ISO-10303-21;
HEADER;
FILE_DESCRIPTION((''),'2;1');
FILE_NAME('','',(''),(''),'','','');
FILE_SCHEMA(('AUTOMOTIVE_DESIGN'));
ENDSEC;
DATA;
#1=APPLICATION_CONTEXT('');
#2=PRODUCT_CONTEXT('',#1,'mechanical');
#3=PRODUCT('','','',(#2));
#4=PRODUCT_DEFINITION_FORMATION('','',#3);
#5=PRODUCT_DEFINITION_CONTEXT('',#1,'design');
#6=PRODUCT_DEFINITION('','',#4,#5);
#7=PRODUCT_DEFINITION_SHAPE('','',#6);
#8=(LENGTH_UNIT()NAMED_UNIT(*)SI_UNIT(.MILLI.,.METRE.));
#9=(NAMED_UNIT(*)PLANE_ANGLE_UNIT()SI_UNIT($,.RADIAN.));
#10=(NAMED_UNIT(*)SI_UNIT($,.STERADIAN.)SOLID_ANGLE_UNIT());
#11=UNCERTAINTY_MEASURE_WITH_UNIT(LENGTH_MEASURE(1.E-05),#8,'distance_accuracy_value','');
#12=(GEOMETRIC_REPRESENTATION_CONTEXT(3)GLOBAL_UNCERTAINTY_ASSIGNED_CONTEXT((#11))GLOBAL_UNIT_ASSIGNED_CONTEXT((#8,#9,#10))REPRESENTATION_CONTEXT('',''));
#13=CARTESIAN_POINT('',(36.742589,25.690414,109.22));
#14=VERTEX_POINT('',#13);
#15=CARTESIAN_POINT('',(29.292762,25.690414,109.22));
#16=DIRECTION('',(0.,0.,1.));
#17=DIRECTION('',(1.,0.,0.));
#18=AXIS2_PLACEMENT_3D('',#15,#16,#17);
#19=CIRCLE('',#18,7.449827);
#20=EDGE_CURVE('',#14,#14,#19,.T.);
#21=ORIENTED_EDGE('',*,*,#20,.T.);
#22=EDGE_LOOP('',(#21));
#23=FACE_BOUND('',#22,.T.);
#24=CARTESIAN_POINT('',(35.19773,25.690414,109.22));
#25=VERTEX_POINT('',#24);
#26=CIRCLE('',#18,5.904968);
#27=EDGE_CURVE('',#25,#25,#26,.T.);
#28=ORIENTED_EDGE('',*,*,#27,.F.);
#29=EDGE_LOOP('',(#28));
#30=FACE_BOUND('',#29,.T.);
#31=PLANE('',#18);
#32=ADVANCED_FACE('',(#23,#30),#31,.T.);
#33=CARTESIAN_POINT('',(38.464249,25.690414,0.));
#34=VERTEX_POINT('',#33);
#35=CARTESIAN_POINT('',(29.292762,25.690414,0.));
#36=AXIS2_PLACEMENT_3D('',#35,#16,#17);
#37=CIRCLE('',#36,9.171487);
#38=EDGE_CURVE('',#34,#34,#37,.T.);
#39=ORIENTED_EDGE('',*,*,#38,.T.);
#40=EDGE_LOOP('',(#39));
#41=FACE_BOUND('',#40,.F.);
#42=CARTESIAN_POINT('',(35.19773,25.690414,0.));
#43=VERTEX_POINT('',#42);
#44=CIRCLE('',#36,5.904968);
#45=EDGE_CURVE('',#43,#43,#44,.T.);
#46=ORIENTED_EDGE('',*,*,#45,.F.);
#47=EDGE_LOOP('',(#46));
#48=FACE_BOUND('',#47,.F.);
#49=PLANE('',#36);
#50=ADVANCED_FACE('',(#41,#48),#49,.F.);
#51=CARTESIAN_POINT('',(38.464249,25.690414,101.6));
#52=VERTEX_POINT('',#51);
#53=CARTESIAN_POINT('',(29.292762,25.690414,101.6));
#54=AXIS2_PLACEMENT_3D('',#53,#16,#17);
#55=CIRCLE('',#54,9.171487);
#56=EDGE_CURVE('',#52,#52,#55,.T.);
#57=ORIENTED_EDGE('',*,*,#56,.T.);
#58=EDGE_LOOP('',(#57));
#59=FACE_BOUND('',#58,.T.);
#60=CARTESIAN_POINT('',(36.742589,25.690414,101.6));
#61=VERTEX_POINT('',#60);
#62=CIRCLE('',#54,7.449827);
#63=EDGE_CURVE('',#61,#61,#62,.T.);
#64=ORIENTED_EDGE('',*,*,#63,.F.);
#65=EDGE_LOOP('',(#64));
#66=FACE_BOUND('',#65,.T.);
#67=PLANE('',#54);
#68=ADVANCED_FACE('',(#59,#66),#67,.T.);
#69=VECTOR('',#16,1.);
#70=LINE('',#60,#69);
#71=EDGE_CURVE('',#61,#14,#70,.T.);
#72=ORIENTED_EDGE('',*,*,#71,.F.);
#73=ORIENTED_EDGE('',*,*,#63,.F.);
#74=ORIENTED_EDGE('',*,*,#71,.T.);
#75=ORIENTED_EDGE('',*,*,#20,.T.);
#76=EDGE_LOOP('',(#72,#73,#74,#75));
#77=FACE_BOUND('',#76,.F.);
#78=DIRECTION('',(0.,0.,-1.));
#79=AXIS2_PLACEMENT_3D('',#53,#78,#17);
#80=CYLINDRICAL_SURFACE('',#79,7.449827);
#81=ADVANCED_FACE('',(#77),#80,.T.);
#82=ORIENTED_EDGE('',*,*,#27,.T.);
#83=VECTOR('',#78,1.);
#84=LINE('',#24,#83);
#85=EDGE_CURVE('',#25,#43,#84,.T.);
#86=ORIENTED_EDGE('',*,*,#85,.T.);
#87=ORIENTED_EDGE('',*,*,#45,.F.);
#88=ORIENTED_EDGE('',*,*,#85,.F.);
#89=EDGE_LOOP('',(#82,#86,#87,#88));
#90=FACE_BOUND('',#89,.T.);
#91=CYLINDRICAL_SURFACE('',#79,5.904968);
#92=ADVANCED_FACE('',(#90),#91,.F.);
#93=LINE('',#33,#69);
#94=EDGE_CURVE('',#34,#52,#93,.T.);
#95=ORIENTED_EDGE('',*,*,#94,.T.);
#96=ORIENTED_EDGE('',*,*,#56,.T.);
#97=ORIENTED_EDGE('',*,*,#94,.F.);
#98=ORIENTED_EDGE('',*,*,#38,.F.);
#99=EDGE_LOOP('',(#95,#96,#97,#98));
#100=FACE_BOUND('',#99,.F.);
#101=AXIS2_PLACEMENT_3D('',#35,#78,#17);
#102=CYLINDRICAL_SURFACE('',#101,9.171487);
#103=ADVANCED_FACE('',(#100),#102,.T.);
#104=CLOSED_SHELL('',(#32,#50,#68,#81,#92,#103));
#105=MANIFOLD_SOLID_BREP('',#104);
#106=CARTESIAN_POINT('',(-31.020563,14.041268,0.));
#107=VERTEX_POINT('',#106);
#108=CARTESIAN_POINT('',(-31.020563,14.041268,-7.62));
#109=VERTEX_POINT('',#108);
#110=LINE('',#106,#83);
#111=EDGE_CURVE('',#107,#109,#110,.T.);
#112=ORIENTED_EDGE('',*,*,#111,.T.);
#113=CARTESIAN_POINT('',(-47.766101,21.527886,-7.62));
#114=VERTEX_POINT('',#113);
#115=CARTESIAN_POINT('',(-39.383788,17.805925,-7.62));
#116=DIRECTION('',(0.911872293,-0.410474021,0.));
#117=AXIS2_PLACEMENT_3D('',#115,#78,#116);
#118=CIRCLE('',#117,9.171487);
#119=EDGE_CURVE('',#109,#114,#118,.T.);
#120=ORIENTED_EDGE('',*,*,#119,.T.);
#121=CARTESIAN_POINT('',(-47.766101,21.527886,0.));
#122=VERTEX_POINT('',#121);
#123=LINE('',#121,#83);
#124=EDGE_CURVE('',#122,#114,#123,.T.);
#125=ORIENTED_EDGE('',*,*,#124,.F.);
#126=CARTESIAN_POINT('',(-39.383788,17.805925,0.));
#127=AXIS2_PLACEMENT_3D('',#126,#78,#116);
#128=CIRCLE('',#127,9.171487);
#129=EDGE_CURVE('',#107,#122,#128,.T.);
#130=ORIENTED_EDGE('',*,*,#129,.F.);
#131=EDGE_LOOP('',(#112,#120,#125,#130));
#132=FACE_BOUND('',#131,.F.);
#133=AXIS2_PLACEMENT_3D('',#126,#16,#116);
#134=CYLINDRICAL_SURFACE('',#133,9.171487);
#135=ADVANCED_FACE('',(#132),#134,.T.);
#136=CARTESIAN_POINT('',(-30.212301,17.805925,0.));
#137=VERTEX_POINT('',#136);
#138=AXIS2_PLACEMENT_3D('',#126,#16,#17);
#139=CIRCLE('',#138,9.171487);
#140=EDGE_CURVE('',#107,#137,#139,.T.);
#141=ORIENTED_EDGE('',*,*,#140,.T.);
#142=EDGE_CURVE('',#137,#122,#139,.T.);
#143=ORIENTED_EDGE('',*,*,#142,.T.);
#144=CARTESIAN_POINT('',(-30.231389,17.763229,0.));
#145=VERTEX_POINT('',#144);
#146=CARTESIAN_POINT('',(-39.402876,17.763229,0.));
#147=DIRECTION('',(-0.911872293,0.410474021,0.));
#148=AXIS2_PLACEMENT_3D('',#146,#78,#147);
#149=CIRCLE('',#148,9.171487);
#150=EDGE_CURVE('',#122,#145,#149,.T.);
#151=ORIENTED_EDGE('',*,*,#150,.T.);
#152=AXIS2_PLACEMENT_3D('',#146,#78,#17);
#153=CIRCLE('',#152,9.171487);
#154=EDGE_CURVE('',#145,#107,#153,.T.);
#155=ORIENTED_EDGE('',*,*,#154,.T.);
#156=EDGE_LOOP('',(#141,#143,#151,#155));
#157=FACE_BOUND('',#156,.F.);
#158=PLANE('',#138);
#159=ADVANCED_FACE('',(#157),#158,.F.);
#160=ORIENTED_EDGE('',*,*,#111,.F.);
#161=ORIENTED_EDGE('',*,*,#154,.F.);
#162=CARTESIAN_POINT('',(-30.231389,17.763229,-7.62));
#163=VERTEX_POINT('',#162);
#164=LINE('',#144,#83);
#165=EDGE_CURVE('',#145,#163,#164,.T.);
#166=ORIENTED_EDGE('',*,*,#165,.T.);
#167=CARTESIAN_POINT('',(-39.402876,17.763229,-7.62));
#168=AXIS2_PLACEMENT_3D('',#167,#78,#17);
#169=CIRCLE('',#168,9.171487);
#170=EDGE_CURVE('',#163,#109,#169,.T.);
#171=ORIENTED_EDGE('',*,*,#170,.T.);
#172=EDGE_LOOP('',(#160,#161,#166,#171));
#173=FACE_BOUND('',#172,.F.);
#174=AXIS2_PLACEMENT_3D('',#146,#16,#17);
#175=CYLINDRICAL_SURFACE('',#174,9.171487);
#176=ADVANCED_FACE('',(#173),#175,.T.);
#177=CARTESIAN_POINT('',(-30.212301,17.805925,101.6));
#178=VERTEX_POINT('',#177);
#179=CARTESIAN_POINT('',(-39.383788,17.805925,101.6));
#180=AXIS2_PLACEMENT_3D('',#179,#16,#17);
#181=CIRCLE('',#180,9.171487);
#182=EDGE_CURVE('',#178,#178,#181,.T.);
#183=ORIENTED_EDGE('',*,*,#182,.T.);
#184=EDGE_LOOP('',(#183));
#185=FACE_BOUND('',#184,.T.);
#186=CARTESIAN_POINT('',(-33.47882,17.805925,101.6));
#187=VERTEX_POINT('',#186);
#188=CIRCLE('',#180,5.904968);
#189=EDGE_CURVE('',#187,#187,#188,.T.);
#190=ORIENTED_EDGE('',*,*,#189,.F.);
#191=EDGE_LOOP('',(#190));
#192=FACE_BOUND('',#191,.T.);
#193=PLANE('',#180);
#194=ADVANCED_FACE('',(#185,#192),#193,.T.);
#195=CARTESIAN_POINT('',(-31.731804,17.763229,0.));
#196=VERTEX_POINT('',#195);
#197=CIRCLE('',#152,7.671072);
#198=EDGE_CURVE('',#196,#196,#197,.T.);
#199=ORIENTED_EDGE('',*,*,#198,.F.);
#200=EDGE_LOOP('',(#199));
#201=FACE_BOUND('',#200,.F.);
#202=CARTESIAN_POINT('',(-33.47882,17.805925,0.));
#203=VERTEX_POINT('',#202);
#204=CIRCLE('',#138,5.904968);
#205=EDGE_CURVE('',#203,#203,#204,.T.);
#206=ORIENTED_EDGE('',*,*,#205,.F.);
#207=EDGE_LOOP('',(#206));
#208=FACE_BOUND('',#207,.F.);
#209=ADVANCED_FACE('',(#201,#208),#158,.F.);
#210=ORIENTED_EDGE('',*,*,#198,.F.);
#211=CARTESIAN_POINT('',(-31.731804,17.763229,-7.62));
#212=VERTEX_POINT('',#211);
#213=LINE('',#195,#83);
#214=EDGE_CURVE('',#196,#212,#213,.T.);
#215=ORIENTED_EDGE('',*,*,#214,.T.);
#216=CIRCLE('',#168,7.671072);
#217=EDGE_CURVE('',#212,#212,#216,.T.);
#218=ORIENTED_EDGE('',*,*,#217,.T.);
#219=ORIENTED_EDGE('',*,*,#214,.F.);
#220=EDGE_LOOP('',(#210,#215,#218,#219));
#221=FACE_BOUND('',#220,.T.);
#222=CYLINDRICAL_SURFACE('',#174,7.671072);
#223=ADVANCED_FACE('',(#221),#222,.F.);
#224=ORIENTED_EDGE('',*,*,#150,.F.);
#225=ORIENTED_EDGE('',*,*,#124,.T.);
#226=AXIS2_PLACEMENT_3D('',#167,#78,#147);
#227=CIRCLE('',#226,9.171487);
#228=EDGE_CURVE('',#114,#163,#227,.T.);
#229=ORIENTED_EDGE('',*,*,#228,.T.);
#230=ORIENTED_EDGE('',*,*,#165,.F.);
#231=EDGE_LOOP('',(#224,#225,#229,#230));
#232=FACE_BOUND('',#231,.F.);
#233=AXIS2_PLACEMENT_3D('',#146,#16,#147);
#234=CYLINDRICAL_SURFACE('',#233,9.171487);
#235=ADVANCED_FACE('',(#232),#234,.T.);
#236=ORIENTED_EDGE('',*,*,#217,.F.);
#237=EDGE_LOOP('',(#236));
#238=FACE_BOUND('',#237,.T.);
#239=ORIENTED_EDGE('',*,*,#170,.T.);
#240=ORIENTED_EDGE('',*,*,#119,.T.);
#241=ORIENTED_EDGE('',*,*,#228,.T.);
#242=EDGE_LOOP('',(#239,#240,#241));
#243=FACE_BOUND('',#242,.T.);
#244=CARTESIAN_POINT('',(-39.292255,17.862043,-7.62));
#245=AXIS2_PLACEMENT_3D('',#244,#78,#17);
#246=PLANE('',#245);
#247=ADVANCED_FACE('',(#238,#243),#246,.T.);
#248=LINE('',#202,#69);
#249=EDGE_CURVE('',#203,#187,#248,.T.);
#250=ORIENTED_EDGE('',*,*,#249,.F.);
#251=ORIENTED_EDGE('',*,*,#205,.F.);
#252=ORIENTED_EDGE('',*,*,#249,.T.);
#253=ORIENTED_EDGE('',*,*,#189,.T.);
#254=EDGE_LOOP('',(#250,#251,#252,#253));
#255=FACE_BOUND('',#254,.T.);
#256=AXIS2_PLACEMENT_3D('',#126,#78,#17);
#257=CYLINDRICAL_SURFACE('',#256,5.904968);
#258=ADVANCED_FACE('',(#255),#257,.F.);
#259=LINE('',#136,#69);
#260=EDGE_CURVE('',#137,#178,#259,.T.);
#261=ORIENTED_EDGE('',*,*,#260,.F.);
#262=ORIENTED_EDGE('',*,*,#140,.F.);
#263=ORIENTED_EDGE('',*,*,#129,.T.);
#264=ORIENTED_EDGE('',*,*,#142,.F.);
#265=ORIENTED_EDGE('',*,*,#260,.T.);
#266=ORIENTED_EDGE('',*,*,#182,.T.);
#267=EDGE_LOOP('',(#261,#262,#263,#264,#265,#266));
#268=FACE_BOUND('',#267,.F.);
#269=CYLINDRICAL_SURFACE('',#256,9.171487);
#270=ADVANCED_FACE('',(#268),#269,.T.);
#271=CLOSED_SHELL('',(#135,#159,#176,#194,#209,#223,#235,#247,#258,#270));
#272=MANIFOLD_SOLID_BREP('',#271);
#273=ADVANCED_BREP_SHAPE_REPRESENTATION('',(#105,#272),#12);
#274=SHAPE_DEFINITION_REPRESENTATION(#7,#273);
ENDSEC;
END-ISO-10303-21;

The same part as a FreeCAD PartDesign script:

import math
import FreeCAD as App
import Part
import Sketcher

V = App.Vector
Q = App.Units.Quantity

doc = App.newDocument("Part")
body = doc.addObject("PartDesign::Body", "Body")

# Sketch on XY plane
sketch1 = doc.addObject("Sketcher::SketchObject", "Sketch")
body.addObject(sketch1)
sketch1.AttachmentSupport = (doc.XY_Plane, [""])
sketch1.MapMode = "FlatFace"
sketch1.addGeometry(Part.Circle(V(29.292762, 25.690414, 0), V(0, 0, 1), 9.171487), False)
sketch1.addGeometry(Part.Circle(V(29.292762, 25.690414, 0), V(0, 0, 1), 5.904968), False)
sketch1.addConstraint(Sketcher.Constraint("Coincident", 1, 3, 0, 3))
sketch1.addConstraint(Sketcher.Constraint("Diameter", 0, Q("18.342973 mm")))
sketch1.addConstraint(Sketcher.Constraint("Diameter", 1, Q("11.809935 mm")))
sketch1.addConstraint(Sketcher.Constraint("DistanceX", -1, 1, 0, 3, Q("29.292762 mm")))
sketch1.addConstraint(Sketcher.Constraint("DistanceY", -1, 1, 0, 3, Q("25.690414 mm")))
pad1 = doc.addObject("PartDesign::Pad", "Pad")
body.addObject(pad1)
pad1.Profile = sketch1
pad1.Length = Q("4 in")

# Sketch on XY plane
sketch2 = doc.addObject("Sketcher::SketchObject", "Sketch001")
body.addObject(sketch2)
sketch2.AttachmentSupport = (doc.XY_Plane, [""])
sketch2.MapMode = "FlatFace"
sketch2.AttachmentOffset = App.Placement(V(0, 0, 4 * 25.4), App.Rotation())
sketch2.addGeometry(Part.Circle(V(29.292762, 25.690414, 0), V(0, 0, 1), 7.449827), False)
sketch2.addGeometry(Part.Circle(V(29.292762, 25.690414, 0), V(0, 0, 1), 5.904968), False)
sketch2.addConstraint(Sketcher.Constraint("Coincident", 1, 3, 0, 3))
sketch2.addConstraint(Sketcher.Constraint("Diameter", 0, Q("14.899654 mm")))
sketch2.addConstraint(Sketcher.Constraint("Diameter", 1, Q("11.809935 mm")))
sketch2.addConstraint(Sketcher.Constraint("DistanceX", -1, 1, 0, 3, Q("29.292762 mm")))
sketch2.addConstraint(Sketcher.Constraint("DistanceY", -1, 1, 0, 3, Q("25.690414 mm")))
pad2 = doc.addObject("PartDesign::Pad", "Pad001")
body.addObject(pad2)
pad2.Profile = sketch2
pad2.Length = Q("0.3 in")
body2 = doc.addObject("PartDesign::Body", "Body001")

# Sketch on XY plane
sketch3 = doc.addObject("Sketcher::SketchObject", "Sketch002")
body2.addObject(sketch3)
sketch3.AttachmentSupport = (doc.getObject("XY_Plane001"), [""])
sketch3.MapMode = "FlatFace"
sketch3.addGeometry(Part.Circle(V(-39.383788, 17.805925, 0), V(0, 0, 1), 9.171487), False)
sketch3.addGeometry(Part.Circle(V(-39.383788, 17.805925, 0), V(0, 0, 1), 5.904968), False)
sketch3.addConstraint(Sketcher.Constraint("Coincident", 1, 3, 0, 3))
sketch3.addConstraint(Sketcher.Constraint("Diameter", 0, Q("18.342973 mm")))
sketch3.addConstraint(Sketcher.Constraint("Diameter", 1, Q("11.809935 mm")))
sketch3.addConstraint(Sketcher.Constraint("DistanceX", 0, 3, -1, 1, Q("39.383788 mm")))
sketch3.addConstraint(Sketcher.Constraint("DistanceY", -1, 1, 0, 3, Q("17.805925 mm")))
pad3 = doc.addObject("PartDesign::Pad", "Pad002")
body2.addObject(pad3)
pad3.Profile = sketch3
pad3.Length = Q("4 in")

# Sketch on XY plane
sketch4 = doc.addObject("Sketcher::SketchObject", "Sketch003")
body2.addObject(sketch4)
sketch4.AttachmentSupport = (doc.getObject("XY_Plane001"), [""])
sketch4.MapMode = "FlatFace"
sketch4.addGeometry(Part.ArcOfCircle(Part.Circle(V(-39.402876, 17.763229, 0), V(0, 0, 1), 9.171487), math.radians(0), math.radians(155.765384)), False)
sketch4.addGeometry(Part.ArcOfCircle(Part.Circle(V(-39.402876, 17.763229, 0), V(0, 0, 1), 9.171487), math.radians(-23.942446), math.radians(0)), False)
sketch4.addGeometry(Part.ArcOfCircle(Part.Circle(V(-39.383788, 17.805925, 0), V(0, 0, 1), 9.171487), math.radians(156.057554), math.radians(335.765384)), False)
sketch4.addGeometry(Part.Circle(V(-39.402876, 17.763229, 0), V(0, 0, 1), 7.671072), False)
sketch4.addConstraint(Sketcher.Constraint("Tangent", 0, 1, 1, 2))
sketch4.addConstraint(Sketcher.Constraint("Coincident", 1, 1, 2, 2))
sketch4.addConstraint(Sketcher.Constraint("Coincident", 2, 1, 0, 2))
sketch4.addConstraint(Sketcher.Constraint("Coincident", 3, 3, 0, 3))
sketch4.addConstraint(Sketcher.Constraint("Equal", 0, 1))
sketch4.addConstraint(Sketcher.Constraint("Equal", 1, 2))
sketch4.addConstraint(Sketcher.Constraint("Horizontal", 3, 3, 0, 1))
sketch4.addConstraint(Sketcher.Constraint("Diameter", 3, Q("15.342144 mm")))
sketch4.addConstraint(Sketcher.Constraint("Radius", 0, Q("9.171487 mm")))
sketch4.addConstraint(Sketcher.Constraint("DistanceX", 2, 1, -1, 1, Q("47.766101 mm")))
sketch4.addConstraint(Sketcher.Constraint("DistanceX", 2, 3, 0, 1, Q("9.152398 mm")))
sketch4.addConstraint(Sketcher.Constraint("DistanceY", -1, 1, 0, 3, Q("17.763229 mm")))
sketch4.addConstraint(Sketcher.Constraint("DistanceX", 0, 1, -1, 1, Q("30.231389 mm")))
pad4 = doc.addObject("PartDesign::Pad", "Pad003")
body2.addObject(pad4)
pad4.Profile = sketch4
pad4.Length = Q("0.3 in")
pad4.Reversed = True

doc.recompute()
